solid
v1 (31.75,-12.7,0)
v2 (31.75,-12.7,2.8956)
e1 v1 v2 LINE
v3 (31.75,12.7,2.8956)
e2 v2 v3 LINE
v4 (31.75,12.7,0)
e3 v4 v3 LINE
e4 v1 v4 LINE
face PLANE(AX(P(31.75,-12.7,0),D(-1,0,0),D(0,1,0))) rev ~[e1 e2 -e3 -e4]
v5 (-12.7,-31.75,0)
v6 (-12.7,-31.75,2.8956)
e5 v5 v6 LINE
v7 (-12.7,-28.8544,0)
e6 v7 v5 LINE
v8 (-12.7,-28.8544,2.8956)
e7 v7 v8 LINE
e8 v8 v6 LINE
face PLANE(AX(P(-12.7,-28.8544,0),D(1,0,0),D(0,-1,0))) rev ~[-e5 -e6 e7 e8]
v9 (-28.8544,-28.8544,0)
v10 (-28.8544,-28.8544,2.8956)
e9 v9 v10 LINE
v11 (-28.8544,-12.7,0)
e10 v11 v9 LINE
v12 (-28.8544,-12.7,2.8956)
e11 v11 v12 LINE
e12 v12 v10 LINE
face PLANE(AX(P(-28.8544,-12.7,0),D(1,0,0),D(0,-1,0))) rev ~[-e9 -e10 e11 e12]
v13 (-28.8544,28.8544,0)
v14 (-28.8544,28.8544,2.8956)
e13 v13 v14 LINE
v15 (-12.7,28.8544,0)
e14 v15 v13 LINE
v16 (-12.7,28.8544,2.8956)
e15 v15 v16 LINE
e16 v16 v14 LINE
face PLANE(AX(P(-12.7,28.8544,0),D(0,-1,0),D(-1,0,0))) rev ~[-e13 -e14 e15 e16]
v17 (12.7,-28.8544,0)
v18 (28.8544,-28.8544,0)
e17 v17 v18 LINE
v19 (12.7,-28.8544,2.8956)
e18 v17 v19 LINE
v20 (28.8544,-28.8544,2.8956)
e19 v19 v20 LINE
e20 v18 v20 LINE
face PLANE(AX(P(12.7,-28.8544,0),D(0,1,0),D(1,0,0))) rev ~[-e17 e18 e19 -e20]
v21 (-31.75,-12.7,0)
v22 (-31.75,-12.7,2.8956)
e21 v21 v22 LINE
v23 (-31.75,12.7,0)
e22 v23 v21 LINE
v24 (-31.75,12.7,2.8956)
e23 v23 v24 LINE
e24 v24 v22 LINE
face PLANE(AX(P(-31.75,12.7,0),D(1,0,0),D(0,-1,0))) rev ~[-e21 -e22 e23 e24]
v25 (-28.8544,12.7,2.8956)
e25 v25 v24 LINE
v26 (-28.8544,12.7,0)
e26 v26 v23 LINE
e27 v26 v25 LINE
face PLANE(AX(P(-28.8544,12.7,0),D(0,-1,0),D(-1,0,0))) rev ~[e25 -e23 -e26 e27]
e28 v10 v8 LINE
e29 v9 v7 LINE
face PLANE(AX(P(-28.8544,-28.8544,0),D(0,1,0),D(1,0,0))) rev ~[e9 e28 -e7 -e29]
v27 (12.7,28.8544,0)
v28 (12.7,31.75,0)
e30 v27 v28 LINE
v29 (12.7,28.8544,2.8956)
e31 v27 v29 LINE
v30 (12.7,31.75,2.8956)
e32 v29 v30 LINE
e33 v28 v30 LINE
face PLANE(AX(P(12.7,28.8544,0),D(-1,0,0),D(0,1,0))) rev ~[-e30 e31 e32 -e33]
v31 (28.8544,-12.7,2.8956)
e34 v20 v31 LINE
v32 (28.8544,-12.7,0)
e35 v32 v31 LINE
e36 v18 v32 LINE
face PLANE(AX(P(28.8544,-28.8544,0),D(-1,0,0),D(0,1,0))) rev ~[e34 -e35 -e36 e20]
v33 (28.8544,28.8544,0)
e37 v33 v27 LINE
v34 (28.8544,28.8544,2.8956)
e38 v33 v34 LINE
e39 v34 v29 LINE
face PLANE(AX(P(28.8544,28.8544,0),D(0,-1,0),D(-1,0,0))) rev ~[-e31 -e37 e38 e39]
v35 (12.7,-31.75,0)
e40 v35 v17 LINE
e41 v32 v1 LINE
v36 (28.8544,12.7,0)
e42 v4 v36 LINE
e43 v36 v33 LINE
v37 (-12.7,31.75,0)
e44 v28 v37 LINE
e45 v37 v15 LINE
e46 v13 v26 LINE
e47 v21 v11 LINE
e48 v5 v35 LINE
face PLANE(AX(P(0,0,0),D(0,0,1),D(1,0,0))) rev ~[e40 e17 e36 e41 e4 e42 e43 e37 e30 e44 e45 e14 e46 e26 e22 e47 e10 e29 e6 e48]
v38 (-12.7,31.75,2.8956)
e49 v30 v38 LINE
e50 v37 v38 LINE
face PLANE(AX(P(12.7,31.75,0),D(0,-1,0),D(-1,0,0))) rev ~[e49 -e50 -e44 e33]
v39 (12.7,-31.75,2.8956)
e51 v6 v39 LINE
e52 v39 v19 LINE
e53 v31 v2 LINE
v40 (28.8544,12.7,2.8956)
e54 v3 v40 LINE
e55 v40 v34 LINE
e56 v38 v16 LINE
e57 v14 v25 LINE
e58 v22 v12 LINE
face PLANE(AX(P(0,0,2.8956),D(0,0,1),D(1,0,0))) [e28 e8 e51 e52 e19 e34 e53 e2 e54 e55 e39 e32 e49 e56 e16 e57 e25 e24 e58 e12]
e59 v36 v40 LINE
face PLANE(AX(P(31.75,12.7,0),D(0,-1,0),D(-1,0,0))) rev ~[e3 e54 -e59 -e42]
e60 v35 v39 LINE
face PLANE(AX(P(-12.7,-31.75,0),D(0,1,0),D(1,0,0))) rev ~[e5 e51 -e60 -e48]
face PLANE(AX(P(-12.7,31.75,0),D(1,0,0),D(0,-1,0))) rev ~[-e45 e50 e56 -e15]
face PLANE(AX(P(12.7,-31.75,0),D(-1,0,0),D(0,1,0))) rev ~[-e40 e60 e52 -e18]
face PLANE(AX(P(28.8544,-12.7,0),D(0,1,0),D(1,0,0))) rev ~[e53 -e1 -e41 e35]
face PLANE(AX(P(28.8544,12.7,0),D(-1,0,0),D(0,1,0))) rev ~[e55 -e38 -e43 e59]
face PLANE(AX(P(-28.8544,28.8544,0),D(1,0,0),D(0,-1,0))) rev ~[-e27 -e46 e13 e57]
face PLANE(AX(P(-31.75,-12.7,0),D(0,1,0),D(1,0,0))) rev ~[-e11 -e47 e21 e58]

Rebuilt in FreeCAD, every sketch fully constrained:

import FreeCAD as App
import Part
import Sketcher

V = App.Vector
Q = App.Units.Quantity

doc = App.newDocument("Part")
body = doc.addObject("PartDesign::Body", "Body")

# Sketch on XY plane
sketch1 = doc.addObject("Sketcher::SketchObject", "Sketch")
body.addObject(sketch1)
sketch1.AttachmentSupport = (doc.XY_Plane, [""])
sketch1.MapMode = "FlatFace"
sketch1.addGeometry([
    Part.LineSegment(V(-31.8, -12.7, 0), V(-28.9, -12.7, 0)),  # 0
    Part.LineSegment(V(-28.9, -12.7, 0), V(-28.9, -28.9, 0)),  # 1
    Part.LineSegment(V(-28.9, -28.9, 0), V(-12.7, -28.9, 0)),  # 2
    Part.LineSegment(V(-12.7, -28.9, 0), V(-12.7, -31.8, 0)),  # 3
    Part.LineSegment(V(-12.7, -31.8, 0), V(12.7, -31.8, 0)),  # 4
    Part.LineSegment(V(12.7, -31.8, 0), V(12.7, -28.9, 0)),  # 5
    Part.LineSegment(V(12.7, -28.9, 0), V(28.9, -28.9, 0)),  # 6
    Part.LineSegment(V(28.9, -28.9, 0), V(28.9, -12.7, 0)),  # 7
    Part.LineSegment(V(28.9, -12.7, 0), V(31.8, -12.7, 0)),  # 8
    Part.LineSegment(V(31.8, -12.7, 0), V(31.8, 12.7, 0)),  # 9
    Part.LineSegment(V(31.8, 12.7, 0), V(28.9, 12.7, 0)),  # 10
    Part.LineSegment(V(28.9, 12.7, 0), V(28.9, 28.9, 0)),  # 11
    Part.LineSegment(V(28.9, 28.9, 0), V(12.7, 28.9, 0)),  # 12
    Part.LineSegment(V(12.7, 28.9, 0), V(12.7, 31.8, 0)),  # 13
    Part.LineSegment(V(12.7, 31.8, 0), V(-12.7, 31.8, 0)),  # 14
    Part.LineSegment(V(-12.7, 31.8, 0), V(-12.7, 28.9, 0)),  # 15
    Part.LineSegment(V(-12.7, 28.9, 0), V(-28.9, 28.9, 0)),  # 16
    Part.LineSegment(V(-28.9, 28.9, 0), V(-28.9, 12.7, 0)),  # 17
    Part.LineSegment(V(-28.9, 12.7, 0), V(-31.8, 12.7, 0)),  # 18
    Part.LineSegment(V(-31.8, 12.7, 0), V(-31.8, -12.7, 0)),  # 19
], False)
sketch1.addConstraint([
    Sketcher.Constraint("Coincident", 0, 2, 1, 1),
    Sketcher.Constraint("Coincident", 1, 2, 2, 1),
    Sketcher.Constraint("Coincident", 2, 2, 3, 1),
    Sketcher.Constraint("Coincident", 3, 2, 4, 1),
    Sketcher.Constraint("Coincident", 4, 2, 5, 1),
    Sketcher.Constraint("Coincident", 5, 2, 6, 1),
    Sketcher.Constraint("Coincident", 6, 2, 7, 1),
    Sketcher.Constraint("Coincident", 7, 2, 8, 1),
    Sketcher.Constraint("Coincident", 8, 2, 9, 1),
    Sketcher.Constraint("Coincident", 9, 2, 10, 1),
    Sketcher.Constraint("Coincident", 10, 2, 11, 1),
    Sketcher.Constraint("Coincident", 11, 2, 12, 1),
    Sketcher.Constraint("Coincident", 12, 2, 13, 1),
    Sketcher.Constraint("Coincident", 13, 2, 14, 1),
    Sketcher.Constraint("Coincident", 14, 2, 15, 1),
    Sketcher.Constraint("Coincident", 15, 2, 16, 1),
    Sketcher.Constraint("Coincident", 16, 2, 17, 1),
    Sketcher.Constraint("Coincident", 17, 2, 18, 1),
    Sketcher.Constraint("Coincident", 18, 2, 19, 1),
    Sketcher.Constraint("Coincident", 19, 2, 0, 1),
    Sketcher.Constraint("Horizontal", 0),
    Sketcher.Constraint("Vertical", 1),
    Sketcher.Constraint("Horizontal", 2),
    Sketcher.Constraint("Vertical", 3),
    Sketcher.Constraint("Horizontal", 4),
    Sketcher.Constraint("Vertical", 5),
    Sketcher.Constraint("Horizontal", 6),
    Sketcher.Constraint("Vertical", 7),
    Sketcher.Constraint("Horizontal", 8),
    Sketcher.Constraint("Vertical", 9),
    Sketcher.Constraint("Horizontal", 10),
    Sketcher.Constraint("Vertical", 11),
    Sketcher.Constraint("Horizontal", 12),
    Sketcher.Constraint("Vertical", 13),
    Sketcher.Constraint("Horizontal", 14),
    Sketcher.Constraint("Vertical", 15),
    Sketcher.Constraint("Horizontal", 16),
    Sketcher.Constraint("Vertical", 17),
    Sketcher.Constraint("Horizontal", 18),
    Sketcher.Constraint("Vertical", 19),
    Sketcher.Constraint("Symmetric", 0, 2, 10, 2, -1, 1),
    Sketcher.Constraint("Symmetric", 2, 2, 12, 2, -1, 1),
    Sketcher.Constraint("Symmetric", 4, 2, 14, 2, -1, 1),
    Sketcher.Constraint("Symmetric", 6, 2, 16, 2, -1, 1),
    Sketcher.Constraint("Symmetric", 8, 2, 18, 2, -1, 1),
    Sketcher.Constraint("Symmetric", 2, 2, 5, 2, -2),
    Sketcher.Constraint("Symmetric", 0, 2, 7, 2, -2),
    Sketcher.Constraint("Equal", 16, 1),
    Sketcher.Constraint("Equal", 18, 3),
    Sketcher.Constraint("Equal", 14, 9),
    Sketcher.Constraint("DistanceX", 4, 1, 4, 2, Q("1 in")),
    Sketcher.Constraint("DistanceX", 0, 1, 0, 2, Q("0.114 in")),
    Sketcher.Constraint("DistanceX", 2, 1, 2, 2, Q("0.636 in")),
])
pad1 = doc.addObject("PartDesign::Pad", "Pad")
body.addObject(pad1)
pad1.Profile = sketch1
pad1.Length = Q("0.114 in")

doc.recompute()
